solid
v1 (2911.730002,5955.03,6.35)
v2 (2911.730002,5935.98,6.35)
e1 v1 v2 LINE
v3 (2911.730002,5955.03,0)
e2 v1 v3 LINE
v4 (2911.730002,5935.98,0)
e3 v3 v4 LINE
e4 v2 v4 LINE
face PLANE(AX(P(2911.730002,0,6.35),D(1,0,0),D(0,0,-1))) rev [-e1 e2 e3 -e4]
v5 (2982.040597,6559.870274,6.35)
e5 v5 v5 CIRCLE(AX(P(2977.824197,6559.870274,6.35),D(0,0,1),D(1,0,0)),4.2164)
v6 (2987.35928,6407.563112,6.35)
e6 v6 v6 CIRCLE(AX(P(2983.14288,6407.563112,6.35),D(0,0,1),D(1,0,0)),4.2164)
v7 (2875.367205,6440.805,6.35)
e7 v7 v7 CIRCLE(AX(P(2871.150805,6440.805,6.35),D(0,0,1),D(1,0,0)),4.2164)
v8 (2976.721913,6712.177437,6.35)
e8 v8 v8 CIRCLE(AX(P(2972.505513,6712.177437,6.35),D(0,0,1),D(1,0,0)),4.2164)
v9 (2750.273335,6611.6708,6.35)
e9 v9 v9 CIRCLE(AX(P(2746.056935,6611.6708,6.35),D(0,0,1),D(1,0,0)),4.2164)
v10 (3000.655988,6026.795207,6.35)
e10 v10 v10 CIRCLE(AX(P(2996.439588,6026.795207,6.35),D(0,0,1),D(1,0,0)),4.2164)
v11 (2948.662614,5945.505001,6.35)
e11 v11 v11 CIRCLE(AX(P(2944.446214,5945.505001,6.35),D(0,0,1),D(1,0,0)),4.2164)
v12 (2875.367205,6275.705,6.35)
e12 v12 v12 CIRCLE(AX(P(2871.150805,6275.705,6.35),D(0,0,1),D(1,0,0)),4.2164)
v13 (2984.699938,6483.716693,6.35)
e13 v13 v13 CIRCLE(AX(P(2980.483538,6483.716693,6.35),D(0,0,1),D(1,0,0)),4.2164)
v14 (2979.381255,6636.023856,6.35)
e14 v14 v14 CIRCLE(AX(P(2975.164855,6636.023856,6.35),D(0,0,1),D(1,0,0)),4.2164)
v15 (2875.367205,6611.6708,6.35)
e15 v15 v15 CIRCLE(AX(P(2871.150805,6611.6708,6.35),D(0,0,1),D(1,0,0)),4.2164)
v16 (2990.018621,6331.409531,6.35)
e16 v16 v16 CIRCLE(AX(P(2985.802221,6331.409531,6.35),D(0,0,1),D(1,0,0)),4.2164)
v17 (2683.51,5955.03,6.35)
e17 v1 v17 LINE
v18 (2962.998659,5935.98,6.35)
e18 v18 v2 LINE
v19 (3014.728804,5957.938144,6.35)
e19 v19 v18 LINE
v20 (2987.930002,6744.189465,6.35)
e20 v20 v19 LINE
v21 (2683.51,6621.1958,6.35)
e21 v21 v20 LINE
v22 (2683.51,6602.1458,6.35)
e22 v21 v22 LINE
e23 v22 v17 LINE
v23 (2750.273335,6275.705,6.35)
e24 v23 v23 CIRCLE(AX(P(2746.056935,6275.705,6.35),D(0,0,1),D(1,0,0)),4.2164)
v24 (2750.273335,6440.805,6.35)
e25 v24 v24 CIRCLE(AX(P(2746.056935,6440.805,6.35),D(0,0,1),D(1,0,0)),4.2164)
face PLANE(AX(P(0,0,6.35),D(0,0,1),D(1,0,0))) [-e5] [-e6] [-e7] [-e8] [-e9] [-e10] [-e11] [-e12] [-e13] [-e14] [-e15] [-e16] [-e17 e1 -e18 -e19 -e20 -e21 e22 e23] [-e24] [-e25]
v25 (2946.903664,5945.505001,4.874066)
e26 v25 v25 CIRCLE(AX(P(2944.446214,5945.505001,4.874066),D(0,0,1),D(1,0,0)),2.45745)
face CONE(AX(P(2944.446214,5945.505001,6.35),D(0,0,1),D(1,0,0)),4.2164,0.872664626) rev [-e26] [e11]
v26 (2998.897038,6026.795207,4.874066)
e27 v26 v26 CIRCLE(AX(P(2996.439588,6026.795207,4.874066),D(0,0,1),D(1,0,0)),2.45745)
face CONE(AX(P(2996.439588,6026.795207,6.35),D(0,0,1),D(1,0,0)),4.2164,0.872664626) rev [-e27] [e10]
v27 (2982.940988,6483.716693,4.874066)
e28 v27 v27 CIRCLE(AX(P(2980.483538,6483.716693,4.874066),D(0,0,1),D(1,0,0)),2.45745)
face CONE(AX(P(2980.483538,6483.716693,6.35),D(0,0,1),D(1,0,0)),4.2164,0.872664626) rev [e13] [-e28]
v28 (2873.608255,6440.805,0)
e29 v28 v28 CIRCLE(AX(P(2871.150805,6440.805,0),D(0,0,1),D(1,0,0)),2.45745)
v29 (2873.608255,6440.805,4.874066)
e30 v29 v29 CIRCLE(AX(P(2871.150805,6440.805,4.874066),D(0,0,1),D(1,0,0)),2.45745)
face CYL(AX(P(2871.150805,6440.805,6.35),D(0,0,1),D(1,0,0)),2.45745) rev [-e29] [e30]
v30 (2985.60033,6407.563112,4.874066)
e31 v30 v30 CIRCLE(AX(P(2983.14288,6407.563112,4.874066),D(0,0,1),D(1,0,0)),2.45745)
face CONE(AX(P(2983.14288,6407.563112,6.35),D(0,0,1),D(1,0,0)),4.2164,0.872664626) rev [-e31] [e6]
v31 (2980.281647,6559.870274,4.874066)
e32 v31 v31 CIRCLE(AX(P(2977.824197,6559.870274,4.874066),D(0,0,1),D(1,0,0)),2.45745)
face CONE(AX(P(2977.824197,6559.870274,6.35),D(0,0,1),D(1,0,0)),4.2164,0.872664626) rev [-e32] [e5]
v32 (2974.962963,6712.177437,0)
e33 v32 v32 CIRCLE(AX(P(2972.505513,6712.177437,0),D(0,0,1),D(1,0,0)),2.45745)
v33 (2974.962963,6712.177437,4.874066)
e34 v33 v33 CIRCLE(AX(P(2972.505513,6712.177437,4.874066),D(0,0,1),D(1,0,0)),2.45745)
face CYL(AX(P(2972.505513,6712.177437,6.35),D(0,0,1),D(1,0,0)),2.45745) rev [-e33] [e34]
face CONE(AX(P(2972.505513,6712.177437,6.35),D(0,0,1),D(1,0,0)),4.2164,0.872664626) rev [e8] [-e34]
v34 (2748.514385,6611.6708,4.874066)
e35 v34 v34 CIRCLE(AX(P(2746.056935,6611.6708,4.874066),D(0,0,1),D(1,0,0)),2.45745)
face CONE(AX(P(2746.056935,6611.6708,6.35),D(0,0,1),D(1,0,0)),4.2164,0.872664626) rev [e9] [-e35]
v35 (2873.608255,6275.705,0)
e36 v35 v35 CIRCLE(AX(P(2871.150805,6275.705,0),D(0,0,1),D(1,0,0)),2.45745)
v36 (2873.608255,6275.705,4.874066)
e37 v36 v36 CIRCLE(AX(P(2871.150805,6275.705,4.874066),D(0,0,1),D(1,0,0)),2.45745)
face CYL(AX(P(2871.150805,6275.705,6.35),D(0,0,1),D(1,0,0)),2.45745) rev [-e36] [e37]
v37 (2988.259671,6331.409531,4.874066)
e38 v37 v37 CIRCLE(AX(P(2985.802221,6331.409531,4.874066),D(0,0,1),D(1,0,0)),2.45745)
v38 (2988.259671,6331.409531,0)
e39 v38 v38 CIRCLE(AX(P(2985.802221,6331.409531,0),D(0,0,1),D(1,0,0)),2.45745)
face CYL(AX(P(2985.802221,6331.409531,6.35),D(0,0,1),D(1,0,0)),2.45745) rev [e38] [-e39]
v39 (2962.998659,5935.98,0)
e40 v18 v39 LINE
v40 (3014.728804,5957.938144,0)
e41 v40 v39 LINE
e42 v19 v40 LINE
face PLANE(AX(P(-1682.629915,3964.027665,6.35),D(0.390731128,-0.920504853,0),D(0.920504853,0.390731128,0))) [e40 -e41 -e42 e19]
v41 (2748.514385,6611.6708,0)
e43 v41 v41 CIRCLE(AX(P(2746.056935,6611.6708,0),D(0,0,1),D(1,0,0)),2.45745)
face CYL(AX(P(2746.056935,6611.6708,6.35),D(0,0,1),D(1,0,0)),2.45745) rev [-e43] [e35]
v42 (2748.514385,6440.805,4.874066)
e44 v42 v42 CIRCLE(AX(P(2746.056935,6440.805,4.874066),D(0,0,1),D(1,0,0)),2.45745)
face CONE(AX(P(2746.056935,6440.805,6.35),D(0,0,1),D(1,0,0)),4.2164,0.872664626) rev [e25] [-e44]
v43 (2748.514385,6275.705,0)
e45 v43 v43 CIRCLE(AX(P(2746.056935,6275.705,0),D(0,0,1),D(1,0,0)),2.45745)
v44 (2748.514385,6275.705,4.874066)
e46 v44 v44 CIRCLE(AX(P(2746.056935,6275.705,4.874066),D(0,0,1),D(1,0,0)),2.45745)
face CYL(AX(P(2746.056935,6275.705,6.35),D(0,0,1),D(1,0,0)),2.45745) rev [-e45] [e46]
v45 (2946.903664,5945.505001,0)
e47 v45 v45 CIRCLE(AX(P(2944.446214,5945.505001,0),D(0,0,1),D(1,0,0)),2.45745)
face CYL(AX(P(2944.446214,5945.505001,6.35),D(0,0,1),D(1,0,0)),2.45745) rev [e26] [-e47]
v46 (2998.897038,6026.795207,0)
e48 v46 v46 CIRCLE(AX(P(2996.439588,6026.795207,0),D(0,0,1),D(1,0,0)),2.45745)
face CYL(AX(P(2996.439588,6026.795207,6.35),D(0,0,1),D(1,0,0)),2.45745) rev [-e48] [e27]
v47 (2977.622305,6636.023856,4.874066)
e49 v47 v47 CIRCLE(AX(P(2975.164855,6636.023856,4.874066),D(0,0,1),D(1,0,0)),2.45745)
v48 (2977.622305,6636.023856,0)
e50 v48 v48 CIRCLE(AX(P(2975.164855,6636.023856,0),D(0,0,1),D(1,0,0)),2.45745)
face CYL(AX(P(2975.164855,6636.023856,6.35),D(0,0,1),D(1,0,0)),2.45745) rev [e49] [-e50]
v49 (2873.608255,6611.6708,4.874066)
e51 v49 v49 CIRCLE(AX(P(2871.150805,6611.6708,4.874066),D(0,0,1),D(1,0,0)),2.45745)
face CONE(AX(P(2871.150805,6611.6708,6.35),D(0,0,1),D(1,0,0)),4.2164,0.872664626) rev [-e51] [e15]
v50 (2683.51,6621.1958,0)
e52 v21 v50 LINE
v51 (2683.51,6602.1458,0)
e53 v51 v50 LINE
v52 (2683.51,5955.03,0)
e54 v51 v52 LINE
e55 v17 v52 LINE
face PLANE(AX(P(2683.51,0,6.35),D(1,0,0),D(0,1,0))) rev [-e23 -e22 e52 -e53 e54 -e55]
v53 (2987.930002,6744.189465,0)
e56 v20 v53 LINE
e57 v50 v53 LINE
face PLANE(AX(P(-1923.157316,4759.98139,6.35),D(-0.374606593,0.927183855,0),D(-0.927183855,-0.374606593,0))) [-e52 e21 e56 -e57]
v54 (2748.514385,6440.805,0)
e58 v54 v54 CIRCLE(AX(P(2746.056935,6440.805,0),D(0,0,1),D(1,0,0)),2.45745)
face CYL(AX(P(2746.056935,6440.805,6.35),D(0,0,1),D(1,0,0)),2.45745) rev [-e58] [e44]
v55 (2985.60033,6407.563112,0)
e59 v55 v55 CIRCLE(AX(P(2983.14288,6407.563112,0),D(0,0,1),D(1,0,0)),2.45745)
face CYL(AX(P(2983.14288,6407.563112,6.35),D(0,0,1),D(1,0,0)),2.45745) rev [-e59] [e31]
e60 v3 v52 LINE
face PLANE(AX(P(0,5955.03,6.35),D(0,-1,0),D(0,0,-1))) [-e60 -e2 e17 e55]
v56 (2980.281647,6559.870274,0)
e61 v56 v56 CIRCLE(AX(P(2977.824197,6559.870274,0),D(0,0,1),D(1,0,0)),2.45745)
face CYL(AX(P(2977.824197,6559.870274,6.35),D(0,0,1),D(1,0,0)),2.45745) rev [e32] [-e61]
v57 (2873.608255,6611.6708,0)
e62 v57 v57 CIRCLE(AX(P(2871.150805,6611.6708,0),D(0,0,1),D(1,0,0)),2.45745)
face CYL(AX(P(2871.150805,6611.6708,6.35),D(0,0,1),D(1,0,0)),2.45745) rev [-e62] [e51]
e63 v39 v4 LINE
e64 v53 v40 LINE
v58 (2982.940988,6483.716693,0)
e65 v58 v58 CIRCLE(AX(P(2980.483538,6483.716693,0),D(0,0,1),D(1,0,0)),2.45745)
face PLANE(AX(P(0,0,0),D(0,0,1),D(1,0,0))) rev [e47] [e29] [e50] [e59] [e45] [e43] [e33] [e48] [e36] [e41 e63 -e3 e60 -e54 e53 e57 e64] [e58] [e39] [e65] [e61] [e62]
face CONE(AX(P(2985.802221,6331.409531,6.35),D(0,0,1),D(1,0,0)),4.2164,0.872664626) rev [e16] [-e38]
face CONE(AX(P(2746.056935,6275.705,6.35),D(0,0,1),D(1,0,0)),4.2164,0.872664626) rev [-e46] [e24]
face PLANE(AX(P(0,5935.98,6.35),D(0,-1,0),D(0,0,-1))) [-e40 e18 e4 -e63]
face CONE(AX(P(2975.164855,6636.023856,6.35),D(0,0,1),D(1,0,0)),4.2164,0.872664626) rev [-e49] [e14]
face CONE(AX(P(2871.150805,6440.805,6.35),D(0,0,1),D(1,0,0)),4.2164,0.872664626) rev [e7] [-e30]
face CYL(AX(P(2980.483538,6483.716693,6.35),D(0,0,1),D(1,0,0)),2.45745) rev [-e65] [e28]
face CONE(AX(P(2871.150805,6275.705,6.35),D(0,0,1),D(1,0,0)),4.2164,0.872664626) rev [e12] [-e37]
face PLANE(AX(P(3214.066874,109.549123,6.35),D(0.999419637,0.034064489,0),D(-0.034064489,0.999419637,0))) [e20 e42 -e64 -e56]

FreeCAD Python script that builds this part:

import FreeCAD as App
import Part
import Sketcher
Q = App.Units.Quantity


def add_polygon(sketch, points):
    """Adds a closed chain of lines whose ends are joined by coincident constraints."""
    first, n = sketch.GeometryCount, len(points)
    for a, b in zip(points, points[1:] + points[:1]):
        sketch.addGeometry(Part.LineSegment(App.Vector(*a, 0), App.Vector(*b, 0)), False)
    for i in range(n):
        sketch.addConstraint(Sketcher.Constraint("Coincident", first + i, 2, first + (i + 1) % n, 1))

doc = App.newDocument("Part")
params = doc.addObject("Spreadsheet::Sheet", "Params")
for row, (alias, value) in enumerate([
    ("sketch1_height", "0.75 in"),
    ("sketch1_height2", "26.227 in"),
    ("pad1_length", "0.25 in"),
    ("sketch2_height", "0.75 in"),
    ("pad2_length", "0.25 in"),
    ("hole_diameter", "0.1935 in"),
    ("hole_depth", "0.25 in"),
    ("hole_csink_diameter", "0.332 in"),
], start=1):
    params.set(f"A{row}", alias)
    params.set(f"B{row}", "=" + value)
    params.setAlias(f"B{row}", alias)

body = doc.addObject("PartDesign::Body", "Body")

sketch1 = body.newObject("Sketcher::SketchObject", "Sketch")
sketch1.AttachmentSupport = (doc.getObject("XY_Plane"), [""])
sketch1.MapMode = "FlatFace"
add_polygon(sketch1, [(2683.51, 6621.1958), (2683.51, 5955.03), (2911.730002, 5955.03), (2911.730002, 5935.98), (2962.998659, 5935.98), (3014.728804, 5957.938144), (2987.930002, 6744.189465)])
sketch1.addConstraint([
    Sketcher.Constraint("Vertical", 0),
    Sketcher.Constraint("Horizontal", 1),
    Sketcher.Constraint("Vertical", 2),
    Sketcher.Constraint("Horizontal", 3),
    Sketcher.Constraint("Angle", 4, Q("23 deg")),
    Sketcher.Constraint("Angle", 6, Q("-158 deg")),
    Sketcher.Constraint("DistanceX", 1, 2, 5, 2, Q("3 in")),
    Sketcher.Constraint("DistanceY", 2, 2, 2, 1, Q("0.75 in")),
    Sketcher.Constraint("DistanceY", -1, 1, 2, 2, Q("233.7 in")),
    Sketcher.Constraint("DistanceY", 0, 2, 0, 1, Q("26.227 in")),
    Sketcher.Constraint("DistanceX", -1, 1, 0, 2, Q("105.65 in")),
    Sketcher.Constraint("Distance", 4, Q("56.197581 mm")),
    Sketcher.Constraint("Distance", 6, Q("328.327549 mm")),
    Sketcher.Constraint("DistanceX", 3, 1, 3, 2, Q("51.268657 mm")),
])
sketch1.setExpression("Constraints[14]", "Params.sketch1_height")
sketch1.setExpression("Constraints[16]", "Params.sketch1_height2")
pad1 = body.newObject("PartDesign::Pad", "Pad")
pad1.Profile = sketch1
pad1.setExpression("Length", "Params.pad1_length")

sketch2 = body.newObject("Sketcher::SketchObject", "Sketch001")
sketch2.AttachmentSupport = (doc.getObject("XY_Plane"), [""])
sketch2.MapMode = "FlatFace"
sketch2.AttachmentOffset = App.Placement(App.Vector(0, 0, 0.25 * 25.4), App.Rotation())
add_polygon(sketch2, [(2933.697739, 6621.1958), (2683.51, 6621.1958), (2683.51, 6602.1458), (2933.697739, 6602.1458)])
sketch2.addConstraint([
    Sketcher.Constraint("Horizontal", 0),
    Sketcher.Constraint("Vertical", 1),
    Sketcher.Constraint("Horizontal", 2),
    Sketcher.Constraint("Vertical", 3),
    Sketcher.Constraint("DistanceY", 1, 2, 1, 1, Q("0.75 in")),
    Sketcher.Constraint("DistanceX", -1, 1, 0, 2, Q("105.65 in")),
    Sketcher.Constraint("DistanceY", -1, 1, 0, 2, Q("260.677 in")),
    Sketcher.Constraint("DistanceX", 0, 2, 0, 1, Q("250.187739 mm")),
])
sketch2.setExpression("Constraints[8]", "Params.sketch2_height")
pad2 = body.newObject("PartDesign::Pad", "Pad001")
pad2.Profile = sketch2
pad2.setExpression("Length", "Params.pad2_length")
pad2.Reversed = True

sketch3 = body.newObject("Sketcher::SketchObject", "Sketch002")
sketch3.AttachmentSupport = (doc.getObject("XY_Plane"), [""])
sketch3.MapMode = "FlatFace"
sketch3.AttachmentOffset = App.Placement(App.Vector(0, 0, 0.25 * 25.4), App.Rotation())
sketch3.addGeometry([
    Part.Circle(App.Vector(2871.150805, 6611.6708, 0), App.Vector(0, 0, 1), 2.45745),
    Part.Circle(App.Vector(2746.056935, 6611.6708, 0), App.Vector(0, 0, 1), 2.45745),
    Part.Circle(App.Vector(2746.056935, 6440.805, 0), App.Vector(0, 0, 1), 2.45745),
    Part.Circle(App.Vector(2871.150805, 6440.805, 0), App.Vector(0, 0, 1), 2.45745),
    Part.Circle(App.Vector(2746.056935, 6275.705, 0), App.Vector(0, 0, 1), 2.45745),
    Part.Circle(App.Vector(2871.150805, 6275.705, 0), App.Vector(0, 0, 1), 2.45745),
    Part.Circle(App.Vector(2944.446214, 5945.505001, 0), App.Vector(0, 0, 1), 2.45745),
    Part.Circle(App.Vector(2996.439588, 6026.795207, 0), App.Vector(0, 0, 1), 2.45745),
    Part.Circle(App.Vector(2985.802221, 6331.409531, 0), App.Vector(0, 0, 1), 2.45745),
    Part.Circle(App.Vector(2983.14288, 6407.563112, 0), App.Vector(0, 0, 1), 2.45745),
    Part.Circle(App.Vector(2980.483538, 6483.716693, 0), App.Vector(0, 0, 1), 2.45745),
    Part.Circle(App.Vector(2977.824197, 6559.870274, 0), App.Vector(0, 0, 1), 2.45745),
    Part.Circle(App.Vector(2975.164855, 6636.023856, 0), App.Vector(0, 0, 1), 2.45745),
    Part.Circle(App.Vector(2972.505513, 6712.177437, 0), App.Vector(0, 0, 1), 2.45745),
], False)
sketch3.addConstraint([
    Sketcher.Constraint("Equal", 0, 1),
    Sketcher.Constraint("Equal", 1, 2),
    Sketcher.Constraint("Equal", 2, 3),
    Sketcher.Constraint("Equal", 3, 4),
    Sketcher.Constraint("Equal", 4, 5),
    Sketcher.Constraint("Equal", 5, 6),
    Sketcher.Constraint("Equal", 6, 7),
    Sketcher.Constraint("Equal", 7, 8),
    Sketcher.Constraint("Equal", 8, 9),
    Sketcher.Constraint("Equal", 9, 10),
    Sketcher.Constraint("Equal", 10, 11),
    Sketcher.Constraint("Equal", 11, 12),
    Sketcher.Constraint("Equal", 12, 13),
    Sketcher.Constraint("Horizontal", 0, 3, 1, 3),
    Sketcher.Constraint("Horizontal", 2, 3, 3, 3),
    Sketcher.Constraint("Horizontal", 4, 3, 5, 3),
    Sketcher.Constraint("Vertical", 1, 3, 2, 3),
    Sketcher.Constraint("Vertical", 0, 3, 3, 3),
    Sketcher.Constraint("Vertical", 2, 3, 4, 3),
    Sketcher.Constraint("Vertical", 3, 3, 5, 3),
    Sketcher.Constraint("DistanceY", 6, 3, 5, 3, Q("13 in")),
    Sketcher.Constraint("Diameter", 0, Q("0.1935 in")),
    Sketcher.Constraint("DistanceY", 4, 3, 2, 3, Q("6.5 in")),
    Sketcher.Constraint("DistanceY", -1, 1, 0, 3, Q("260.302 in")),
    Sketcher.Constraint("DistanceY", -1, 1, 2, 3, Q("253.575 in")),
    Sketcher.Constraint("DistanceX", -1, 1, 7, 3, Q("2996.439588 mm")),
    Sketcher.Constraint("DistanceX", -1, 1, 8, 3, Q("2985.802221 mm")),
    Sketcher.Constraint("DistanceY", -1, 1, 8, 3, Q("6331.409531 mm")),
    Sketcher.Constraint("DistanceX", -1, 1, 9, 3, Q("2983.14288 mm")),
    Sketcher.Constraint("DistanceX", -1, 1, 10, 3, Q("2980.483538 mm")),
    Sketcher.Constraint("DistanceX", 1, 3, 0, 3, Q("125.09387 mm")),
    Sketcher.Constraint("DistanceX", 5, 3, 6, 3, Q("73.29541 mm")),
    Sketcher.Constraint("DistanceY", 8, 3, 9, 3, Q("76.153581 mm")),
    Sketcher.Constraint("DistanceY", 9, 3, 10, 3, Q("76.153581 mm")),
    Sketcher.Constraint("DistanceX", 11, 3, 10, 3, Q("2.659342 mm")),
    Sketcher.Constraint("DistanceY", 10, 3, 11, 3, Q("76.153581 mm")),
    Sketcher.Constraint("DistanceX", 0, 3, 11, 3, Q("106.673392 mm")),
    Sketcher.Constraint("DistanceX", 12, 3, 11, 3, Q("2.659342 mm")),
    Sketcher.Constraint("DistanceY", 11, 3, 12, 3, Q("76.153581 mm")),
    Sketcher.Constraint("DistanceX", 13, 3, 12, 3, Q("2.659342 mm")),
    Sketcher.Constraint("DistanceY", 12, 3, 13, 3, Q("76.153581 mm")),
    Sketcher.Constraint("DistanceY", -1, 1, 7, 3, Q("6026.795207 mm")),
])
doc.recompute()
hole = body.newObject("PartDesign::Hole", "Hole")
hole.Profile = sketch3
hole.ThreadType = "None"
hole.setExpression("Diameter", "Params.hole_diameter")
hole.DepthType = "Dimension"
hole.setExpression("Depth", "Params.hole_depth")
hole.DrillPoint = "Flat"
hole.HoleCutType = "Countersink"
hole.setExpression("HoleCutDiameter", "Params.hole_csink_diameter")
hole.HoleCutCountersinkAngle = 100

doc.recompute()
